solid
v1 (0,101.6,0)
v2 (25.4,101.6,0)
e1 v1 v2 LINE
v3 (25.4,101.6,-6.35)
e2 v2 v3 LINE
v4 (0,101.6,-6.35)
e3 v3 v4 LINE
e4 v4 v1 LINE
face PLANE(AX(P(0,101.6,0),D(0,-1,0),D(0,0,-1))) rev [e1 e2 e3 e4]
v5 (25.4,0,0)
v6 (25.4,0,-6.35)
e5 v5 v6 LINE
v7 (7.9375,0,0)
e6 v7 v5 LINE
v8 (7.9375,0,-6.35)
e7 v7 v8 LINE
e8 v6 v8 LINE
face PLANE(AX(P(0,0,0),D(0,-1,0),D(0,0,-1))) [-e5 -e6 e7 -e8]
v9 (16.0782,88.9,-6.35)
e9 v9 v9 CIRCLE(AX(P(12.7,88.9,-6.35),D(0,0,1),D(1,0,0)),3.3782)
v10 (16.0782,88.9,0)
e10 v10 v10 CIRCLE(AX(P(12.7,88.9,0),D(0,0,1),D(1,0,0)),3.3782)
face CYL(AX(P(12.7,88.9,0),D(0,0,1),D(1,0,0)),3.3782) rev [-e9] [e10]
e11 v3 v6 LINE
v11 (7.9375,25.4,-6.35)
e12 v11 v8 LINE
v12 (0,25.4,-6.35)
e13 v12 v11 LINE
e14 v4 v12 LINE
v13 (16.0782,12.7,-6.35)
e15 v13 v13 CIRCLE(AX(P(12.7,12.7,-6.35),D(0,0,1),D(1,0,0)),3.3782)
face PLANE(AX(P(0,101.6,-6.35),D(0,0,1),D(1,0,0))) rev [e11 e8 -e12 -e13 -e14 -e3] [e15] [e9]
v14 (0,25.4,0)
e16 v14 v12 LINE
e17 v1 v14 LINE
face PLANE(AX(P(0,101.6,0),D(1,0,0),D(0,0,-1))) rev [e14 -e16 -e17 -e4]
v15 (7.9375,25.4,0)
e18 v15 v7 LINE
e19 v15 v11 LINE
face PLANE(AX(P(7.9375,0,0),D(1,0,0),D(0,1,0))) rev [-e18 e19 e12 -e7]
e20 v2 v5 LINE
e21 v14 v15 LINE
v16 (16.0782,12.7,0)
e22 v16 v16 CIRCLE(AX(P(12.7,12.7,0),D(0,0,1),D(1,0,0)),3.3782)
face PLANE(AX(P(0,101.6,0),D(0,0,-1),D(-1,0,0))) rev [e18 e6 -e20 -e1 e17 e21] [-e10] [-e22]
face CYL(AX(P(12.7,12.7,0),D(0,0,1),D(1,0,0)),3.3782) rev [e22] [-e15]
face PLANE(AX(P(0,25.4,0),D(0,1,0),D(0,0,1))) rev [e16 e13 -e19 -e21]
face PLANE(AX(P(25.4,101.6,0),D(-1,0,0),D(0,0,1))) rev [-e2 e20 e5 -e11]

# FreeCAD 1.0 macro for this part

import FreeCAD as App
import Part
import Sketcher
from FreeCAD import Vector
Q = App.Units.Quantity

doc = App.newDocument("Part")
body = doc.addObject("PartDesign::Body", "Body")

sketch1 = body.newObject("Sketcher::SketchObject", "Sketch")
sketch1.AttachmentSupport = (doc.getObject("XZ_Plane"), [""])
sketch1.MapMode = "FlatFace"
sketch1.addGeometry(Part.LineSegment(Vector(0, -6.35, 0), Vector(0, 0, 0)), False)
sketch1.addGeometry(Part.LineSegment(Vector(0, 0, 0), Vector(25.4, 0, 0)), False)
sketch1.addGeometry(Part.LineSegment(Vector(25.4, 0, 0), Vector(25.4, -6.35, 0)), False)
sketch1.addGeometry(Part.LineSegment(Vector(25.4, -6.35, 0), Vector(0, -6.35, 0)), False)
sketch1.addConstraint(Sketcher.Constraint("Coincident", 0, 2, 1, 1))
sketch1.addConstraint(Sketcher.Constraint("Coincident", 1, 2, 2, 1))
sketch1.addConstraint(Sketcher.Constraint("Coincident", 2, 2, 3, 1))
sketch1.addConstraint(Sketcher.Constraint("Coincident", 3, 2, 0, 1))
sketch1.addConstraint(Sketcher.Constraint("Vertical", 0))
sketch1.addConstraint(Sketcher.Constraint("Horizontal", 1))
sketch1.addConstraint(Sketcher.Constraint("Vertical", 2))
sketch1.addConstraint(Sketcher.Constraint("Horizontal", 3))
sketch1.addConstraint(Sketcher.Constraint("Coincident", 0, 2, -1, 1))
sketch1.addConstraint(Sketcher.Constraint("DistanceX", 1, 1, 1, 2, Q("1 in")))
sketch1.addConstraint(Sketcher.Constraint("DistanceY", 0, 1, 0, 2, Q("0.25 in")))
pad1 = body.newObject("PartDesign::Pad", "Pad")
pad1.Profile = sketch1
pad1.Length = Q("4 in")
pad1.Reversed = True

sketch2 = body.newObject("Sketcher::SketchObject", "Sketch001")
sketch2.AttachmentSupport = (doc.getObject("XY_Plane"), [""])
sketch2.MapMode = "FlatFace"
sketch2.addGeometry(Part.Circle(Vector(12.7, 88.9, 0), Vector(0, 0, 1), 3.3782), False)
sketch2.addGeometry(Part.Circle(Vector(12.7, 12.7, 0), Vector(0, 0, 1), 3.3782), False)
sketch2.addConstraint(Sketcher.Constraint("Equal", 0, 1))
sketch2.addConstraint(Sketcher.Constraint("Vertical", 0, 3, 1, 3))
sketch2.addConstraint(Sketcher.Constraint("Diameter", 0, Q("0.266 in")))
sketch2.addConstraint(Sketcher.Constraint("DistanceY", 1, 3, 0, 3, Q("3 in")))
sketch2.addConstraint(Sketcher.Constraint("DistanceX", -1, 1, 0, 3, Q("0.5 in")))
sketch2.addConstraint(Sketcher.Constraint("DistanceY", -1, 1, 0, 3, Q("3.5 in")))
doc.recompute()
hole = body.newObject("PartDesign::Hole", "Hole")
hole.Profile = sketch2
hole.ThreadType = "None"
hole.Diameter = Q("0.266 in")
hole.DepthType = "Dimension"
hole.Depth = Q("0.25 in")
hole.DrillPoint = "Flat"

sketch3 = body.newObject("Sketcher::SketchObject", "Sketch002")
sketch3.AttachmentSupport = (doc.getObject("XY_Plane"), [""])
sketch3.MapMode = "FlatFace"
sketch3.AttachmentOffset = App.Placement(Vector(0, 0, -0.25 * 25.4), App.Rotation())
sketch3.addGeometry(Part.LineSegment(Vector(7.9375, 25.4, 0), Vector(7.9375, 0, 0)), False)
sketch3.addGeometry(Part.LineSegment(Vector(7.9375, 0, 0), Vector(0, 0, 0)), False)
sketch3.addGeometry(Part.LineSegment(Vector(0, 0, 0), Vector(0, 25.4, 0)), False)
sketch3.addGeometry(Part.LineSegment(Vector(0, 25.4, 0), Vector(7.9375, 25.4, 0)), False)
sketch3.addConstraint(Sketcher.Constraint("Coincident", 0, 2, 1, 1))
sketch3.addConstraint(Sketcher.Constraint("Coincident", 1, 2, 2, 1))
sketch3.addConstraint(Sketcher.Constraint("Coincident", 2, 2, 3, 1))
sketch3.addConstraint(Sketcher.Constraint("Coincident", 3, 2, 0, 1))
sketch3.addConstraint(Sketcher.Constraint("Vertical", 0))
sketch3.addConstraint(Sketcher.Constraint("Horizontal", 1))
sketch3.addConstraint(Sketcher.Constraint("Vertical", 2))
sketch3.addConstraint(Sketcher.Constraint("Horizontal", 3))
sketch3.addConstraint(Sketcher.Constraint("Coincident", 1, 2, -1, 1))
sketch3.addConstraint(Sketcher.Constraint("DistanceY", 0, 2, 0, 1, Q("1 in")))
sketch3.addConstraint(Sketcher.Constraint("DistanceX", 1, 2, 1, 1, Q("0.3125 in")))
pocket1 = body.newObject("PartDesign::Pocket", "Pocket")
pocket1.Profile = sketch3
pocket1.Type = "ThroughAll"
pocket1.Reversed = True

doc.recompute()
